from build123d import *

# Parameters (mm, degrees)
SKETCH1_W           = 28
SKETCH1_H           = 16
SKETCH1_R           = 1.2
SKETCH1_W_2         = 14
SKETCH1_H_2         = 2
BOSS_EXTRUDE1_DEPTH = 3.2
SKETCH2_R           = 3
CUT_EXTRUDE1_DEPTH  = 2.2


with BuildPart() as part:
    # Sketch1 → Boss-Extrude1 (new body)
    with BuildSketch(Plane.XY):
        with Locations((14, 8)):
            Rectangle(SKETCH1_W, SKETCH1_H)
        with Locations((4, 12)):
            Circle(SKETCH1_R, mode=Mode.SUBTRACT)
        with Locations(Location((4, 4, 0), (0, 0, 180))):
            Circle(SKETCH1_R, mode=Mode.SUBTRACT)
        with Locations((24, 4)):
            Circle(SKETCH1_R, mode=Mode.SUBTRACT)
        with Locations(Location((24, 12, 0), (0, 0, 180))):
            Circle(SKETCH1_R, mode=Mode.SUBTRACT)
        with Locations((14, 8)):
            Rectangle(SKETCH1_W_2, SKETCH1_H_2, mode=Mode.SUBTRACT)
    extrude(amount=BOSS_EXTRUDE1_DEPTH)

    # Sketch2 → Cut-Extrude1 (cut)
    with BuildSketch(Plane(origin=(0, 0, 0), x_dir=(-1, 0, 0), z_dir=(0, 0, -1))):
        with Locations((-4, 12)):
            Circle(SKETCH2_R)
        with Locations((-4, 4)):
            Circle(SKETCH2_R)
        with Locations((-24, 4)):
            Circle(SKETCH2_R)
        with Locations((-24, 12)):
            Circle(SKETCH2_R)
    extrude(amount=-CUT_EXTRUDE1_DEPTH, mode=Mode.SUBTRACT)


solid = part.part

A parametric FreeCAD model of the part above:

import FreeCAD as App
import Part
import Sketcher

doc = App.newDocument("Part")
body = doc.addObject("PartDesign::Body", "Body")

sketch1 = doc.addObject("Sketcher::SketchObject", "Sketch")
body.addObject(sketch1)
sketch1.AttachmentSupport = (doc.XY_Plane, [""])
sketch1.MapMode = "FlatFace"
sketch1.addGeometry([
    Part.LineSegment(App.Vector(0, 16, 0), App.Vector(0, 0, 0)),
    Part.LineSegment(App.Vector(0, 0, 0), App.Vector(28, 0, 0)),
    Part.LineSegment(App.Vector(28, 0, 0), App.Vector(28, 16, 0)),
    Part.LineSegment(App.Vector(28, 16, 0), App.Vector(0, 16, 0)),
    Part.Circle(App.Vector(4, 4, 0), App.Vector(0, 0, 1), 1.2),
    Part.Circle(App.Vector(24, 4, 0), App.Vector(0, 0, 1), 1.2),
    Part.Circle(App.Vector(4, 12, 0), App.Vector(0, 0, 1), 1.2),
    Part.LineSegment(App.Vector(21, 7, 0), App.Vector(7, 7, 0)),
    Part.LineSegment(App.Vector(7, 7, 0), App.Vector(7, 9, 0)),
    Part.LineSegment(App.Vector(7, 9, 0), App.Vector(21, 9, 0)),
    Part.LineSegment(App.Vector(21, 9, 0), App.Vector(21, 7, 0)),
    Part.Circle(App.Vector(24, 12, 0), App.Vector(0, 0, 1), 1.2),
], False)
sketch1.addConstraint([
    Sketcher.Constraint("Coincident", 0, 2, 1, 1),
    Sketcher.Constraint("Coincident", 1, 2, 2, 1),
    Sketcher.Constraint("Coincident", 2, 2, 3, 1),
    Sketcher.Constraint("Coincident", 3, 2, 0, 1),
    Sketcher.Constraint("Coincident", 7, 2, 8, 1),
    Sketcher.Constraint("Coincident", 8, 2, 9, 1),
    Sketcher.Constraint("Coincident", 9, 2, 10, 1),
    Sketcher.Constraint("Coincident", 10, 2, 7, 1),
    Sketcher.Constraint("Vertical", 0),
    Sketcher.Constraint("Horizontal", 1),
    Sketcher.Constraint("Vertical", 2),
    Sketcher.Constraint("Horizontal", 3),
    Sketcher.Constraint("Horizontal", 7),
    Sketcher.Constraint("Vertical", 8),
    Sketcher.Constraint("Horizontal", 9),
    Sketcher.Constraint("Vertical", 10),
    Sketcher.Constraint("Coincident", 0, 2, -1, 1),
    Sketcher.Constraint("Equal", 4, 5),
    Sketcher.Constraint("Equal", 5, 6),
    Sketcher.Constraint("Equal", 6, 11),
    Sketcher.Constraint("Horizontal", 4, 3, 5, 3),
    Sketcher.Constraint("Horizontal", 6, 3, 11, 3),
    Sketcher.Constraint("Vertical", 4, 3, 6, 3),
    Sketcher.Constraint("Vertical", 5, 3, 11, 3),
    Sketcher.Constraint("Diameter", 4, 2.4),
    Sketcher.Constraint("DistanceX", 1, 1, 1, 2, 28.0),
    Sketcher.Constraint("DistanceX", 7, 2, 7, 1, 14.0),
    Sketcher.Constraint("DistanceY", 0, 2, 0, 1, 16.0),
    Sketcher.Constraint("DistanceY", 8, 1, 8, 2, 2.0),
    Sketcher.Constraint("DistanceX", -1, 1, 4, 3, 4.0),
    Sketcher.Constraint("DistanceY", -1, 1, 4, 3, 4.0),
    Sketcher.Constraint("DistanceX", -1, 1, 5, 3, 24.0),
    Sketcher.Constraint("DistanceY", -1, 1, 6, 3, 12.0),
    Sketcher.Constraint("DistanceX", -1, 1, 7, 2, 7.0),
    Sketcher.Constraint("DistanceY", -1, 1, 7, 2, 7.0),
])
pad1 = doc.addObject("PartDesign::Pad", "Pad")
body.addObject(pad1)
pad1.Profile = sketch1
pad1.Length = 3.2

sketch2 = doc.addObject("Sketcher::SketchObject", "Sketch001")
body.addObject(sketch2)
sketch2.AttachmentSupport = (doc.XY_Plane, [""])
sketch2.MapMode = "FlatFace"
sketch2.addGeometry([
    Part.Circle(App.Vector(4, 12, 0), App.Vector(0, 0, 1), 3),
    Part.Circle(App.Vector(4, 4, 0), App.Vector(0, 0, 1), 3),
    Part.Circle(App.Vector(24, 4, 0), App.Vector(0, 0, 1), 3),
    Part.Circle(App.Vector(24, 12, 0), App.Vector(0, 0, 1), 3),
], False)
sketch2.addConstraint([
    Sketcher.Constraint("Equal", 0, 1),
    Sketcher.Constraint("Equal", 1, 2),
    Sketcher.Constraint("Equal", 2, 3),
    Sketcher.Constraint("Horizontal", 1, 3, 2, 3),
    Sketcher.Constraint("Horizontal", 0, 3, 3, 3),
    Sketcher.Constraint("Vertical", 0, 3, 1, 3),
    Sketcher.Constraint("Vertical", 2, 3, 3, 3),
    Sketcher.Constraint("Diameter", 0, 6.0),
    Sketcher.Constraint("DistanceX", -1, 1, 0, 3, 4.0),
    Sketcher.Constraint("DistanceY", -1, 1, 0, 3, 12.0),
    Sketcher.Constraint("DistanceY", -1, 1, 1, 3, 4.0),
    Sketcher.Constraint("DistanceX", -1, 1, 2, 3, 24.0),
])
pocket1 = doc.addObject("PartDesign::Pocket", "Pocket")
body.addObject(pocket1)
pocket1.Profile = sketch2
pocket1.Length = 2.2
pocket1.Reversed = True

doc.recompute()
